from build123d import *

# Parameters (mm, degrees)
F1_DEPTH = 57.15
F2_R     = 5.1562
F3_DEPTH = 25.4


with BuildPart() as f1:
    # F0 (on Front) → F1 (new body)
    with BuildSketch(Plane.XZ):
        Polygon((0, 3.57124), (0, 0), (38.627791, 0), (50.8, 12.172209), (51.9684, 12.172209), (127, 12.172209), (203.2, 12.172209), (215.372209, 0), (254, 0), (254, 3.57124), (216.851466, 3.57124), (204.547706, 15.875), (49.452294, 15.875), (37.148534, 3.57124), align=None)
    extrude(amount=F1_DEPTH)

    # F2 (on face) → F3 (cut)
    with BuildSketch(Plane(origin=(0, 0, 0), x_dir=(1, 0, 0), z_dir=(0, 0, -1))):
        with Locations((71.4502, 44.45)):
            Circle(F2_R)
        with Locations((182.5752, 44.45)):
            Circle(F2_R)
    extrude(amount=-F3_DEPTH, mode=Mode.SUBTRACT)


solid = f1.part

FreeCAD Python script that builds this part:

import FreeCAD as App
import Part
import Sketcher
Q = App.Units.Quantity


def add_polygon(sketch, points):
    """Adds a closed chain of lines whose ends are joined by coincident constraints."""
    first, n = sketch.GeometryCount, len(points)
    for a, b in zip(points, points[1:] + points[:1]):
        sketch.addGeometry(Part.LineSegment(App.Vector(*a, 0), App.Vector(*b, 0)), False)
    for i in range(n):
        sketch.addConstraint(Sketcher.Constraint("Coincident", first + i, 2, first + (i + 1) % n, 1))

doc = App.newDocument("Part")
params = doc.addObject("Spreadsheet::Sheet", "Params")
for row, (alias, value) in enumerate([
    ("sketch1_width", "6 in"),
    ("pad1_length", "2.25 in"),
    ("sketch2_diameter", "0.406 in"),
    ("pocket1_length", "1 in"),
], start=1):
    params.set(f"A{row}", alias)
    params.set(f"B{row}", "=" + value)
    params.setAlias(f"B{row}", alias)

body = doc.addObject("PartDesign::Body", "Body")

# Sketch on XZ plane
sketch1 = doc.addObject("Sketcher::SketchObject", "Sketch")
body.addObject(sketch1)
sketch1.AttachmentSupport = (doc.XZ_Plane, [""])
sketch1.MapMode = "FlatFace"
add_polygon(sketch1, [(0, 3.6), (0, 0), (38.6, 0), (50.8, 12.2), (203.2, 12.2), (215.4, 0), (254, 0), (254, 3.6), (216.9, 3.6), (204.5, 15.9), (49.5, 15.9), (37.1, 3.6)])  # lines 0-11
sketch1.addConstraint([
    Sketcher.Constraint("Vertical", 0),
    Sketcher.Constraint("Horizontal", 1),
    Sketcher.Constraint("Horizontal", 3),
    Sketcher.Constraint("Horizontal", 5),
    Sketcher.Constraint("Vertical", 6),
    Sketcher.Constraint("Horizontal", 7),
    Sketcher.Constraint("Horizontal", 9),
    Sketcher.Constraint("Horizontal", 11),
    Sketcher.Constraint("Coincident", 0, 2, -1, 1),
    Sketcher.Constraint("PointOnObject", 4, 2, -1),
    Sketcher.Constraint("Perpendicular", 2, 4),
    Sketcher.Constraint("Parallel", 4, 8),
    Sketcher.Constraint("Perpendicular", 8, 10),
    Sketcher.Constraint("Horizontal", 7, 2, 10, 2),
    Sketcher.Constraint("Equal", 1, 5),
    Sketcher.Constraint("Equal", 7, 11),
    Sketcher.Constraint("Equal", 2, 4),
    Sketcher.Constraint("DistanceX", 3, 1, 3, 2, Q("6 in")),
    Sketcher.Constraint("DistanceX", -1, 1, 2, 2, Q("2 in")),
    Sketcher.Constraint("DistanceY", 0, 2, 0, 1, Q("0.1406 in")),
    Sketcher.Constraint("DistanceY", -1, 1, 8, 2, Q("0.625 in")),
    Sketcher.Constraint("DistanceX", 1, 1, 1, 2, 38.627791),
    Sketcher.Constraint("DistanceX", 7, 2, 7, 1, 37.148534),
])
sketch1.setExpression("Constraints[29]", "Params.sketch1_width")
pad1 = doc.addObject("PartDesign::Pad", "Pad")
body.addObject(pad1)
pad1.Profile = sketch1
pad1.setExpression("Length", "Params.pad1_length")

# Sketch on XY plane
sketch2 = doc.addObject("Sketcher::SketchObject", "Sketch001")
body.addObject(sketch2)
sketch2.AttachmentSupport = (doc.XY_Plane, [""])
sketch2.MapMode = "FlatFace"
sketch2.addGeometry([
    Part.Circle(App.Vector(71, -44, 0), App.Vector(0, 0, 1), 5),
    Part.Circle(App.Vector(183, -44, 0), App.Vector(0, 0, 1), 5),
], False)
sketch2.addConstraint([
    Sketcher.Constraint("Equal", 0, 1),
    Sketcher.Constraint("Horizontal", 0, 3, 1, 3),
    Sketcher.Constraint("Diameter", 0, Q("0.406 in")),
    Sketcher.Constraint("DistanceY", 0, 3, -1, 1, Q("1.75 in")),
    Sketcher.Constraint("DistanceX", -1, 1, 0, 3, Q("2.813 in")),
    Sketcher.Constraint("DistanceX", -1, 1, 1, 3, Q("7.188 in")),
])
sketch2.setExpression("Constraints[2]", "Params.sketch2_diameter")
pocket1 = doc.addObject("PartDesign::Pocket", "Pocket")
body.addObject(pocket1)
pocket1.Profile = sketch2
pocket1.setExpression("Length", "Params.pocket1_length")
pocket1.Reversed = True

doc.recompute()
